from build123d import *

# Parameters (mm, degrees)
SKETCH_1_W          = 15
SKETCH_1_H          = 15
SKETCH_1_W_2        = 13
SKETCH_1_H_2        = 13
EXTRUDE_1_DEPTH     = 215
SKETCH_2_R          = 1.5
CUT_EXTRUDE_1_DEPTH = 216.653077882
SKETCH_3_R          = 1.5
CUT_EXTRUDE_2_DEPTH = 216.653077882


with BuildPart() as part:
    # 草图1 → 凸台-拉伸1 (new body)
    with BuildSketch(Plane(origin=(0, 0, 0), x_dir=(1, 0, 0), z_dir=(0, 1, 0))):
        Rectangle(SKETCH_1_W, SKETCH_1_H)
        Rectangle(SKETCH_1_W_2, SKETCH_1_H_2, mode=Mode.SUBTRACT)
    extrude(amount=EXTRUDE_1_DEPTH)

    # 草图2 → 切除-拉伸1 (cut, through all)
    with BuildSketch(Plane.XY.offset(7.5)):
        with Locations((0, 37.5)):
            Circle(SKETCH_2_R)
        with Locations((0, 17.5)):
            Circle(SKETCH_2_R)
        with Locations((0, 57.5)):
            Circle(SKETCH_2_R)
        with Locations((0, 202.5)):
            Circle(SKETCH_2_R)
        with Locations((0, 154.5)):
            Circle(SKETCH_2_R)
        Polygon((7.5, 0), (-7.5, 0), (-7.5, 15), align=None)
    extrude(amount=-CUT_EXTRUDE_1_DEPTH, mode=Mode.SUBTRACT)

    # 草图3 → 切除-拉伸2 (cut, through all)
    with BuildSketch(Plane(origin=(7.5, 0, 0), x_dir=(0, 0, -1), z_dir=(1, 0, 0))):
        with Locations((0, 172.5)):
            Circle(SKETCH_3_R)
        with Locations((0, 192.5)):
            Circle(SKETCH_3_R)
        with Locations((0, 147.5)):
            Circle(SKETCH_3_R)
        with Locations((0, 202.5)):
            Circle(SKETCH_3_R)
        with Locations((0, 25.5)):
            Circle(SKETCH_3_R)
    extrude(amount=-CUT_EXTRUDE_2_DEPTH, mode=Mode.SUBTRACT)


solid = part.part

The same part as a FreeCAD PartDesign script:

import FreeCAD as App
import Part
import Sketcher

doc = App.newDocument("Part")
body = doc.addObject("PartDesign::Body", "Body")

sketch1 = doc.addObject("Sketcher::SketchObject", "Sketch")
body.addObject(sketch1)
sketch1.AttachmentSupport = (doc.XZ_Plane, [""])
sketch1.MapMode = "FlatFace"
sketch1.addGeometry(Part.LineSegment(App.Vector(-7.5, -7.5, 0), App.Vector(-7.5, 7.5, 0)), False)
sketch1.addGeometry(Part.LineSegment(App.Vector(-7.5, 7.5, 0), App.Vector(7.5, 7.5, 0)), False)
sketch1.addGeometry(Part.LineSegment(App.Vector(7.5, 7.5, 0), App.Vector(7.5, -7.5, 0)), False)
sketch1.addGeometry(Part.LineSegment(App.Vector(7.5, -7.5, 0), App.Vector(-7.5, -7.5, 0)), False)
sketch1.addGeometry(Part.LineSegment(App.Vector(6.5, 6.5, 0), App.Vector(-6.5, 6.5, 0)), False)
sketch1.addGeometry(Part.LineSegment(App.Vector(-6.5, 6.5, 0), App.Vector(-6.5, -6.5, 0)), False)
sketch1.addGeometry(Part.LineSegment(App.Vector(-6.5, -6.5, 0), App.Vector(6.5, -6.5, 0)), False)
sketch1.addGeometry(Part.LineSegment(App.Vector(6.5, -6.5, 0), App.Vector(6.5, 6.5, 0)), False)
sketch1.addConstraint(Sketcher.Constraint("Coincident", 0, 2, 1, 1))
sketch1.addConstraint(Sketcher.Constraint("Coincident", 1, 2, 2, 1))
sketch1.addConstraint(Sketcher.Constraint("Coincident", 2, 2, 3, 1))
sketch1.addConstraint(Sketcher.Constraint("Coincident", 3, 2, 0, 1))
sketch1.addConstraint(Sketcher.Constraint("Coincident", 4, 2, 5, 1))
sketch1.addConstraint(Sketcher.Constraint("Coincident", 5, 2, 6, 1))
sketch1.addConstraint(Sketcher.Constraint("Coincident", 6, 2, 7, 1))
sketch1.addConstraint(Sketcher.Constraint("Coincident", 7, 2, 4, 1))
sketch1.addConstraint(Sketcher.Constraint("Vertical", 0))
sketch1.addConstraint(Sketcher.Constraint("Horizontal", 1))
sketch1.addConstraint(Sketcher.Constraint("Vertical", 2))
sketch1.addConstraint(Sketcher.Constraint("Horizontal", 3))
sketch1.addConstraint(Sketcher.Constraint("Horizontal", 4))
sketch1.addConstraint(Sketcher.Constraint("Vertical", 5))
sketch1.addConstraint(Sketcher.Constraint("Horizontal", 6))
sketch1.addConstraint(Sketcher.Constraint("Vertical", 7))
sketch1.addConstraint(Sketcher.Constraint("Symmetric", 0, 2, 2, 2, -1, 1))
sketch1.addConstraint(Sketcher.Constraint("Symmetric", 4, 2, 6, 2, -1, 1))
sketch1.addConstraint(Sketcher.Constraint("Equal", 3, 0))
sketch1.addConstraint(Sketcher.Constraint("Equal", 6, 5))
sketch1.addConstraint(Sketcher.Constraint("DistanceX", 1, 1, 1, 2, 15.0))
sketch1.addConstraint(Sketcher.Constraint("DistanceX", 4, 2, 4, 1, 13.0))
pad1 = doc.addObject("PartDesign::Pad", "Pad")
body.addObject(pad1)
pad1.Profile = sketch1
pad1.Length = 215
pad1.Reversed = True

sketch2 = doc.addObject("Sketcher::SketchObject", "Sketch001")
body.addObject(sketch2)
sketch2.AttachmentSupport = (doc.XY_Plane, [""])
sketch2.MapMode = "FlatFace"
sketch2.AttachmentOffset = App.Placement(App.Vector(0, 0, 7.5), App.Rotation())
sketch2.addGeometry(Part.Circle(App.Vector(0, 37.5, 0), App.Vector(0, 0, 1), 1.5), False)
sketch2.addGeometry(Part.Circle(App.Vector(0, 17.5, 0), App.Vector(0, 0, 1), 1.5), False)
sketch2.addGeometry(Part.Circle(App.Vector(0, 57.5, 0), App.Vector(0, 0, 1), 1.5), False)
sketch2.addGeometry(Part.Circle(App.Vector(0, 202.5, 0), App.Vector(0, 0, 1), 1.5), False)
sketch2.addGeometry(Part.Circle(App.Vector(0, 154.5, 0), App.Vector(0, 0, 1), 1.5), False)
sketch2.addGeometry(Part.LineSegment(App.Vector(-7.5, 0, 0), App.Vector(7.5, 0, 0)), False)
sketch2.addGeometry(Part.LineSegment(App.Vector(7.5, 0, 0), App.Vector(-7.5, 15, 0)), False)
sketch2.addGeometry(Part.LineSegment(App.Vector(-7.5, 15, 0), App.Vector(-7.5, 0, 0)), False)
sketch2.addConstraint(Sketcher.Constraint("Coincident", 5, 2, 6, 1))
sketch2.addConstraint(Sketcher.Constraint("Coincident", 6, 2, 7, 1))
sketch2.addConstraint(Sketcher.Constraint("Coincident", 7, 2, 5, 1))
sketch2.addConstraint(Sketcher.Constraint("Horizontal", 5))
sketch2.addConstraint(Sketcher.Constraint("Vertical", 7))
sketch2.addConstraint(Sketcher.Constraint("Equal", 0, 1))
sketch2.addConstraint(Sketcher.Constraint("Equal", 1, 2))
sketch2.addConstraint(Sketcher.Constraint("Equal", 2, 3))
sketch2.addConstraint(Sketcher.Constraint("Equal", 3, 4))
sketch2.addConstraint(Sketcher.Constraint("Symmetric", 5, 2, 7, 2, -1, 1))
sketch2.addConstraint(Sketcher.Constraint("PointOnObject", 0, 3, -2))
sketch2.addConstraint(Sketcher.Constraint("PointOnObject", 1, 3, -2))
sketch2.addConstraint(Sketcher.Constraint("PointOnObject", 2, 3, -2))
sketch2.addConstraint(Sketcher.Constraint("PointOnObject", 3, 3, -2))
sketch2.addConstraint(Sketcher.Constraint("PointOnObject", 4, 3, -2))
sketch2.addConstraint(Sketcher.Constraint("Equal", 5, 7))
sketch2.addConstraint(Sketcher.Constraint("Diameter", 0, 3.0))
sketch2.addConstraint(Sketcher.Constraint("DistanceX", 5, 1, 5, 2, 15.0))
sketch2.addConstraint(Sketcher.Constraint("DistanceY", 1, 3, 0, 3, 20.0))
sketch2.addConstraint(Sketcher.Constraint("DistanceY", 0, 3, 2, 3, 20.0))
sketch2.addConstraint(Sketcher.Constraint("DistanceY", 2, 3, 3, 3, 145.0))
sketch2.addConstraint(Sketcher.Constraint("DistanceY", 4, 3, 3, 3, 48.0))
sketch2.addConstraint(Sketcher.Constraint("DistanceY", -1, 1, 0, 3, 37.5))
pocket1 = doc.addObject("PartDesign::Pocket", "Pocket")
body.addObject(pocket1)
pocket1.Profile = sketch2
pocket1.Type = "ThroughAll"

sketch3 = doc.addObject("Sketcher::SketchObject", "Sketch002")
body.addObject(sketch3)
sketch3.AttachmentSupport = (doc.YZ_Plane, [""])
sketch3.MapMode = "FlatFace"
sketch3.AttachmentOffset = App.Placement(App.Vector(0, 0, 7.5), App.Rotation())
sketch3.addGeometry(Part.Circle(App.Vector(172.5, 0, 0), App.Vector(0, 0, 1), 1.5), False)
sketch3.addGeometry(Part.Circle(App.Vector(192.5, 0, 0), App.Vector(0, 0, 1), 1.5), False)
sketch3.addGeometry(Part.Circle(App.Vector(147.5, 0, 0), App.Vector(0, 0, 1), 1.5), False)
sketch3.addGeometry(Part.Circle(App.Vector(202.5, 0, 0), App.Vector(0, 0, 1), 1.5), False)
sketch3.addGeometry(Part.Circle(App.Vector(25.5, 0, 0), App.Vector(0, 0, 1), 1.5), False)
sketch3.addConstraint(Sketcher.Constraint("Equal", 0, 1))
sketch3.addConstraint(Sketcher.Constraint("Equal", 1, 2))
sketch3.addConstraint(Sketcher.Constraint("Equal", 2, 3))
sketch3.addConstraint(Sketcher.Constraint("Equal", 3, 4))
sketch3.addConstraint(Sketcher.Constraint("PointOnObject", 0, 3, -1))
sketch3.addConstraint(Sketcher.Constraint("PointOnObject", 1, 3, -1))
sketch3.addConstraint(Sketcher.Constraint("PointOnObject", 2, 3, -1))
sketch3.addConstraint(Sketcher.Constraint("PointOnObject", 3, 3, -1))
sketch3.addConstraint(Sketcher.Constraint("PointOnObject", 4, 3, -1))
sketch3.addConstraint(Sketcher.Constraint("Diameter", 0, 3.0))
sketch3.addConstraint(Sketcher.Constraint("DistanceX", 0, 3, 1, 3, 20.0))
sketch3.addConstraint(Sketcher.Constraint("DistanceX", 2, 3, 0, 3, 25.0))
sketch3.addConstraint(Sketcher.Constraint("DistanceX", 1, 3, 3, 3, 10.0))
sketch3.addConstraint(Sketcher.Constraint("DistanceX", 4, 3, 2, 3, 122.0))
sketch3.addConstraint(Sketcher.Constraint("DistanceX", -1, 1, 0, 3, 172.5))
pocket2 = doc.addObject("PartDesign::Pocket", "Pocket001")
body.addObject(pocket2)
pocket2.Profile = sketch3
pocket2.Type = "ThroughAll"

doc.recompute()
